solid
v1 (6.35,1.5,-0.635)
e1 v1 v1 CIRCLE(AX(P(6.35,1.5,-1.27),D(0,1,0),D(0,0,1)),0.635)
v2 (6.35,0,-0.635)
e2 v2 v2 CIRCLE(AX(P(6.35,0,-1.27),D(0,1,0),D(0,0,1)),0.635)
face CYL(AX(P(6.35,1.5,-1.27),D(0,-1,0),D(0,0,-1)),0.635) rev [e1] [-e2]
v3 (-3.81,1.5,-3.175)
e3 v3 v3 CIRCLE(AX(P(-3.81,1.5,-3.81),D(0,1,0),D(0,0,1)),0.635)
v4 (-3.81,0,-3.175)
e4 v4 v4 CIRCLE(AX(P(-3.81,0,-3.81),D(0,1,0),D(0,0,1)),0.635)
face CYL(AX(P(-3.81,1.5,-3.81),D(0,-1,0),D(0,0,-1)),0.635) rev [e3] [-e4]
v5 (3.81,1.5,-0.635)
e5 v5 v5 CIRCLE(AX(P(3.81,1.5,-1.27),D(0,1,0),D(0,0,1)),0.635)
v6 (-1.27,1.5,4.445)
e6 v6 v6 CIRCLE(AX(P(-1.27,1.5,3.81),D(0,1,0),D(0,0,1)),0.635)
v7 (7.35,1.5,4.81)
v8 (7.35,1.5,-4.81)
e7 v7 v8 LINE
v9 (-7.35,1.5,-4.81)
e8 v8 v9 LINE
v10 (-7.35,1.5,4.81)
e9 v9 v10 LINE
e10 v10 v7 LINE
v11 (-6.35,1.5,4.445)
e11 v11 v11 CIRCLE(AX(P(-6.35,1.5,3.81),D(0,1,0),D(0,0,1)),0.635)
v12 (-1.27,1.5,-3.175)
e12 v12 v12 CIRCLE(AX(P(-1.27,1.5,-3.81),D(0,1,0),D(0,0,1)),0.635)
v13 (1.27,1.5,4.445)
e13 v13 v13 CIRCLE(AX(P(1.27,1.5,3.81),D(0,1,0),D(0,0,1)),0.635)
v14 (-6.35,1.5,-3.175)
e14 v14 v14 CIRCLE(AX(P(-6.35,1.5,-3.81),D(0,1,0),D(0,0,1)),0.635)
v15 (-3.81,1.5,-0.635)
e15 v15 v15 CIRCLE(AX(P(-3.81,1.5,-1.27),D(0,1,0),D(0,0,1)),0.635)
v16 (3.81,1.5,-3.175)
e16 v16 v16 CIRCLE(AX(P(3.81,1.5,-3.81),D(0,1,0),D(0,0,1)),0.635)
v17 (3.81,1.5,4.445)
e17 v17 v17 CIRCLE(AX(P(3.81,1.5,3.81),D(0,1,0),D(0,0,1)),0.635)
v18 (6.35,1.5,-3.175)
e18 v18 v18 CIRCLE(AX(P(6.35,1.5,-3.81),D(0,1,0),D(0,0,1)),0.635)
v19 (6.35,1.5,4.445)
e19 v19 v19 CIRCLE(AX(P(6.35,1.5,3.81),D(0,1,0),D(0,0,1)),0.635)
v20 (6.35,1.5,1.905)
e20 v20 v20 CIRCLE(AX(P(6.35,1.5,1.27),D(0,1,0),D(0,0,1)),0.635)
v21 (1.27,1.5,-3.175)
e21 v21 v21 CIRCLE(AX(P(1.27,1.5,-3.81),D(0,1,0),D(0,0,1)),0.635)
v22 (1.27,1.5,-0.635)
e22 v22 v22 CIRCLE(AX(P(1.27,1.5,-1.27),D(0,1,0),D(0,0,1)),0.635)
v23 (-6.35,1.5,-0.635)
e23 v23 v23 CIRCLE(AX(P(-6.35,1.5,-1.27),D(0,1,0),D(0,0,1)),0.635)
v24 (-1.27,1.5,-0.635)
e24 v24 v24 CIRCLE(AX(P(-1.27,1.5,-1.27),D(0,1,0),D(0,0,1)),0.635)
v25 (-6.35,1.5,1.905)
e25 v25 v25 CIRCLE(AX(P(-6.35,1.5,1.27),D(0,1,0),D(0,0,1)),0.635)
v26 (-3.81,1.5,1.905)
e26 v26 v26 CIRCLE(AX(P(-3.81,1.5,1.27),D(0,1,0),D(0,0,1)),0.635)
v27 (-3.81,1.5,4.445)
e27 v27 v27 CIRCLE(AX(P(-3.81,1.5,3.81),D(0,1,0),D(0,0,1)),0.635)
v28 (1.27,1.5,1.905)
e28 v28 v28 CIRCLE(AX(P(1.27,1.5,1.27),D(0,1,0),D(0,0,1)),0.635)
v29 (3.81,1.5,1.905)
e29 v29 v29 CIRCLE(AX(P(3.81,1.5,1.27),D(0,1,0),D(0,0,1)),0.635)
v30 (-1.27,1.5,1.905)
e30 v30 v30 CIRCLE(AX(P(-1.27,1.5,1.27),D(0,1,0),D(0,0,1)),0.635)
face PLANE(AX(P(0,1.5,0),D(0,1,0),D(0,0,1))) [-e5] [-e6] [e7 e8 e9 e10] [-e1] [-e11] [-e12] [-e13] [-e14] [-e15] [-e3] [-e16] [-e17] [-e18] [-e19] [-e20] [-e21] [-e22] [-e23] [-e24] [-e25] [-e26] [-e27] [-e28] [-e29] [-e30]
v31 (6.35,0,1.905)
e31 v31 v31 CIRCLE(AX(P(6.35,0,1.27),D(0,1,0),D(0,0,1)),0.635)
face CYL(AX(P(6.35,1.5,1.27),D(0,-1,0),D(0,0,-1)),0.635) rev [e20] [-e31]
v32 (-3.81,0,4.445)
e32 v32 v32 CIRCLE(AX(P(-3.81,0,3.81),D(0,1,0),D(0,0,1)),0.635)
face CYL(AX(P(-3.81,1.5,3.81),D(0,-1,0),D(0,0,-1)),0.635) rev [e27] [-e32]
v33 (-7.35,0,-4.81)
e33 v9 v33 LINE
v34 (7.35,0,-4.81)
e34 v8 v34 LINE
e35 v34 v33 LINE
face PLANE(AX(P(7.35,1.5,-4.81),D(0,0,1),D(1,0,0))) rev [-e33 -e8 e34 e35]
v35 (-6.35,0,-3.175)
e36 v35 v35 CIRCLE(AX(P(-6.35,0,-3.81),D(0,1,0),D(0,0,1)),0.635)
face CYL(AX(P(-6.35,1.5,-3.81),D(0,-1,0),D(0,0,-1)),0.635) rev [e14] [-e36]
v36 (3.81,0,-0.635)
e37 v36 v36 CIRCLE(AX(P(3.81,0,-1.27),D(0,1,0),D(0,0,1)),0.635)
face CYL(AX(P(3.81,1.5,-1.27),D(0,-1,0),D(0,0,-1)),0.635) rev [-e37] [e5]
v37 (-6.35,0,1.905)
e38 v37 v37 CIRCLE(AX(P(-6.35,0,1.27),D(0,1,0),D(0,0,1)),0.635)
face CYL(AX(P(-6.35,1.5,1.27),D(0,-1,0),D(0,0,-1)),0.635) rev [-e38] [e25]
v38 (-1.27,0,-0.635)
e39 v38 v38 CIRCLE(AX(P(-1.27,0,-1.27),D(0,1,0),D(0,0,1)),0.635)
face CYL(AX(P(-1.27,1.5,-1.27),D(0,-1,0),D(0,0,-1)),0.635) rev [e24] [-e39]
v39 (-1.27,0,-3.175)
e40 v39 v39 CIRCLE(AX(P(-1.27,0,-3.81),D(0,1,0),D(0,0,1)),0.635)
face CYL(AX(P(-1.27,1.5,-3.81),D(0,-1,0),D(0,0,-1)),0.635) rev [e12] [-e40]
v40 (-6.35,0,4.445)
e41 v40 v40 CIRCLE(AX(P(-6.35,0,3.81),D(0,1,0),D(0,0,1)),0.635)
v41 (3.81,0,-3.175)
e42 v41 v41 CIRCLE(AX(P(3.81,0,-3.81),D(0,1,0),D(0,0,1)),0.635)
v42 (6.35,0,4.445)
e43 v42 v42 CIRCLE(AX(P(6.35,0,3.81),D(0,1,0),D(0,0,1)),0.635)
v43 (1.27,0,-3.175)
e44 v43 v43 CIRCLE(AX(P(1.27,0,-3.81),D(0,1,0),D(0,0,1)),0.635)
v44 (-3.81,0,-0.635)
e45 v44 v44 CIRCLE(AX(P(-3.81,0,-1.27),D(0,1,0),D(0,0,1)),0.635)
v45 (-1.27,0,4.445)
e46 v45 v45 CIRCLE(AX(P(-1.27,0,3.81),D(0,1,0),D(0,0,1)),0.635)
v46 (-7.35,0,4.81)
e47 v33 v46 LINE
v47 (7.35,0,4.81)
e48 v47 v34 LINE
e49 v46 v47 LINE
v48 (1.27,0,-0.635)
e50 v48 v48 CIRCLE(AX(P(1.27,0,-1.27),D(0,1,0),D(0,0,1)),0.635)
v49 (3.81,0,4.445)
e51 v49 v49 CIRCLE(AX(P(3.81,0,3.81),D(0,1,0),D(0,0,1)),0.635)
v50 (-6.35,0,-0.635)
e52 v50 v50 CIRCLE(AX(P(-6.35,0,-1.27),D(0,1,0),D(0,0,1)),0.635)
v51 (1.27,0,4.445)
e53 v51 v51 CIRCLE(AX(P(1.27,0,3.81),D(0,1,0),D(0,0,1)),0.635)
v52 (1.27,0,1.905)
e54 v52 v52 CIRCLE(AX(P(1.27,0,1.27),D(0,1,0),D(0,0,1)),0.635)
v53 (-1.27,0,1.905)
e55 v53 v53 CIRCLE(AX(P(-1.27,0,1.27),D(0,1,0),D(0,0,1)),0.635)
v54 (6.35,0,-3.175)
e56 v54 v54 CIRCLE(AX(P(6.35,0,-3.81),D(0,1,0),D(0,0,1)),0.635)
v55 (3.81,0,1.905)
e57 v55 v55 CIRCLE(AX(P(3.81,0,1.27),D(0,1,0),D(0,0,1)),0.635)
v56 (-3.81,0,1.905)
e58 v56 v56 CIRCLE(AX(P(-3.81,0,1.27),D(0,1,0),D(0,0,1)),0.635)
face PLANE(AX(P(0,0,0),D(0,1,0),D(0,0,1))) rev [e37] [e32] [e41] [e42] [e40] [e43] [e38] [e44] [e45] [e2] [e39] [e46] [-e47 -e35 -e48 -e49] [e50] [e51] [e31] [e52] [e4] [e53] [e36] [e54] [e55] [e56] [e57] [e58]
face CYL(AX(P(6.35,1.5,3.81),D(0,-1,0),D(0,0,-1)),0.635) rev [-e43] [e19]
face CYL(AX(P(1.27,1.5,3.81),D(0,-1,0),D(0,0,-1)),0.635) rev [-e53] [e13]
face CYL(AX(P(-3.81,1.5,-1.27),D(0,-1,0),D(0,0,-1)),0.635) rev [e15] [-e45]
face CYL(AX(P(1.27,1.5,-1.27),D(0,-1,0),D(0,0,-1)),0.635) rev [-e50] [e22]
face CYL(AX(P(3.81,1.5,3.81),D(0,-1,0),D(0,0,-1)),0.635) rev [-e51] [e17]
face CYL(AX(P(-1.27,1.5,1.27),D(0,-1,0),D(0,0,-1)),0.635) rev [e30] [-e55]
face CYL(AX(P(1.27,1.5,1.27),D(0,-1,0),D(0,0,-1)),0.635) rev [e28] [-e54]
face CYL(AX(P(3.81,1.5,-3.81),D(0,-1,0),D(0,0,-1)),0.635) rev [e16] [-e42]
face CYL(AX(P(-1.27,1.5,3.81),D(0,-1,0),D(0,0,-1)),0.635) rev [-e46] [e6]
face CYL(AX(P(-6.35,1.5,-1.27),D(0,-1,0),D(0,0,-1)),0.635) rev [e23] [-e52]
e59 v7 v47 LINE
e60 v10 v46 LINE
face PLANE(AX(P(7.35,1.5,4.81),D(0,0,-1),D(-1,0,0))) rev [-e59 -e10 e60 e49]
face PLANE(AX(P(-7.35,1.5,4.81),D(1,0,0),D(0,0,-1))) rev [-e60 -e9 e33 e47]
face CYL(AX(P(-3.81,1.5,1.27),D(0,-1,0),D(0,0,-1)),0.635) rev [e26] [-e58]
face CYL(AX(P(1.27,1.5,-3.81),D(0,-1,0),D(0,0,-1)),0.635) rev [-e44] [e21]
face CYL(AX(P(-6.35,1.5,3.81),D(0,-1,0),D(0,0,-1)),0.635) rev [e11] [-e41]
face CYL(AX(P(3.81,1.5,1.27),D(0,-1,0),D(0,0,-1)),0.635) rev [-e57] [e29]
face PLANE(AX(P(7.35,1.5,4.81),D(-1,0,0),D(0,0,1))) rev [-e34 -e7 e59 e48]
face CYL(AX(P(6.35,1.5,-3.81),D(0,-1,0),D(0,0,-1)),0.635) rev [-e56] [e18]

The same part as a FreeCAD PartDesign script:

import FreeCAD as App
import Part
import Sketcher
from FreeCAD import Vector
Q = App.Units.Quantity


def add_polygon(sketch, points):
    """Adds a closed chain of lines whose ends are joined by coincident constraints."""
    first, n = sketch.GeometryCount, len(points)
    for a, b in zip(points, points[1:] + points[:1]):
        sketch.addGeometry(Part.LineSegment(App.Vector(*a, 0), App.Vector(*b, 0)), False)
    for i in range(n):
        sketch.addConstraint(Sketcher.Constraint("Coincident", first + i, 2, first + (i + 1) % n, 1))

doc = App.newDocument("Part")
body = doc.addObject("PartDesign::Body", "Body")

sketch1 = body.newObject("Sketcher::SketchObject", "Sketch")
sketch1.AttachmentSupport = (doc.getObject("XZ_Plane"), [""])
sketch1.MapMode = "FlatFace"
add_polygon(sketch1, [(-7.35, -4.81), (-7.35, 4.81), (7.35, 4.81), (7.35, -4.81)])
sketch1.addGeometry(Part.Circle(Vector(-6.35, 3.81, 0), Vector(0, 0, 1), 0.635), False)
sketch1.addGeometry(Part.Circle(Vector(-3.81, 3.81, 0), Vector(0, 0, 1), 0.635), False)
sketch1.addGeometry(Part.Circle(Vector(-1.27, 3.81, 0), Vector(0, 0, 1), 0.635), False)
sketch1.addGeometry(Part.Circle(Vector(-6.35, 1.27, 0), Vector(0, 0, 1), 0.635), False)
sketch1.addGeometry(Part.Circle(Vector(-3.81, 1.27, 0), Vector(0, 0, 1), 0.635), False)
sketch1.addGeometry(Part.Circle(Vector(-1.27, 1.27, 0), Vector(0, 0, 1), 0.635), False)
sketch1.addGeometry(Part.Circle(Vector(1.27, 3.81, 0), Vector(0, 0, 1), 0.635), False)
sketch1.addGeometry(Part.Circle(Vector(3.81, 3.81, 0), Vector(0, 0, 1), 0.635), False)
sketch1.addGeometry(Part.Circle(Vector(6.35, 3.81, 0), Vector(0, 0, 1), 0.635), False)
sketch1.addGeometry(Part.Circle(Vector(1.27, 1.27, 0), Vector(0, 0, 1), 0.635), False)
sketch1.addGeometry(Part.Circle(Vector(3.81, 1.27, 0), Vector(0, 0, 1), 0.635), False)
sketch1.addGeometry(Part.Circle(Vector(6.35, 1.27, 0), Vector(0, 0, 1), 0.635), False)
sketch1.addGeometry(Part.Circle(Vector(-6.35, -1.27, 0), Vector(0, 0, 1), 0.635), False)
sketch1.addGeometry(Part.Circle(Vector(-3.81, -1.27, 0), Vector(0, 0, 1), 0.635), False)
sketch1.addGeometry(Part.Circle(Vector(-1.27, -1.27, 0), Vector(0, 0, 1), 0.635), False)
sketch1.addGeometry(Part.Circle(Vector(-6.35, -3.81, 0), Vector(0, 0, 1), 0.635), False)
sketch1.addGeometry(Part.Circle(Vector(-3.81, -3.81, 0), Vector(0, 0, 1), 0.635), False)
sketch1.addGeometry(Part.Circle(Vector(-1.27, -3.81, 0), Vector(0, 0, 1), 0.635), False)
sketch1.addGeometry(Part.Circle(Vector(1.27, -1.27, 0), Vector(0, 0, 1), 0.635), False)
sketch1.addGeometry(Part.Circle(Vector(3.81, -1.27, 0), Vector(0, 0, 1), 0.635), False)
sketch1.addGeometry(Part.Circle(Vector(6.35, -1.27, 0), Vector(0, 0, 1), 0.635), False)
sketch1.addGeometry(Part.Circle(Vector(1.27, -3.81, 0), Vector(0, 0, 1), 0.635), False)
sketch1.addGeometry(Part.Circle(Vector(3.81, -3.81, 0), Vector(0, 0, 1), 0.635), False)
sketch1.addGeometry(Part.Circle(Vector(6.35, -3.81, 0), Vector(0, 0, 1), 0.635), False)
sketch1.addConstraint(Sketcher.Constraint("Vertical", 0))
sketch1.addConstraint(Sketcher.Constraint("Horizontal", 1))
sketch1.addConstraint(Sketcher.Constraint("Vertical", 2))
sketch1.addConstraint(Sketcher.Constraint("Horizontal", 3))
sketch1.addConstraint(Sketcher.Constraint("Equal", 4, 5))
sketch1.addConstraint(Sketcher.Constraint("Equal", 5, 6))
sketch1.addConstraint(Sketcher.Constraint("Equal", 6, 7))
sketch1.addConstraint(Sketcher.Constraint("Equal", 7, 8))
sketch1.addConstraint(Sketcher.Constraint("Equal", 8, 9))
sketch1.addConstraint(Sketcher.Constraint("Equal", 9, 10))
sketch1.addConstraint(Sketcher.Constraint("Equal", 10, 11))
sketch1.addConstraint(Sketcher.Constraint("Equal", 11, 12))
sketch1.addConstraint(Sketcher.Constraint("Equal", 12, 13))
sketch1.addConstraint(Sketcher.Constraint("Equal", 13, 14))
sketch1.addConstraint(Sketcher.Constraint("Equal", 14, 15))
sketch1.addConstraint(Sketcher.Constraint("Equal", 15, 16))
sketch1.addConstraint(Sketcher.Constraint("Equal", 16, 17))
sketch1.addConstraint(Sketcher.Constraint("Equal", 17, 18))
sketch1.addConstraint(Sketcher.Constraint("Equal", 18, 19))
sketch1.addConstraint(Sketcher.Constraint("Equal", 19, 20))
sketch1.addConstraint(Sketcher.Constraint("Equal", 20, 21))
sketch1.addConstraint(Sketcher.Constraint("Equal", 21, 22))
sketch1.addConstraint(Sketcher.Constraint("Equal", 22, 23))
sketch1.addConstraint(Sketcher.Constraint("Equal", 23, 24))
sketch1.addConstraint(Sketcher.Constraint("Equal", 24, 25))
sketch1.addConstraint(Sketcher.Constraint("Equal", 25, 26))
sketch1.addConstraint(Sketcher.Constraint("Equal", 26, 27))
sketch1.addConstraint(Sketcher.Constraint("Symmetric", 15, 3, 16, 3, -1, 1))
sketch1.addConstraint(Sketcher.Constraint("Symmetric", 14, 3, 17, 3, -1, 1))
sketch1.addConstraint(Sketcher.Constraint("Symmetric", 13, 3, 18, 3, -1, 1))
sketch1.addConstraint(Sketcher.Constraint("Symmetric", 12, 3, 19, 3, -1, 1))
sketch1.addConstraint(Sketcher.Constraint("Symmetric", 11, 3, 20, 3, -1, 1))
sketch1.addConstraint(Sketcher.Constraint("Symmetric", 10, 3, 21, 3, -1, 1))
sketch1.addConstraint(Sketcher.Constraint("Symmetric", 9, 3, 22, 3, -1, 1))
sketch1.addConstraint(Sketcher.Constraint("Symmetric", 8, 3, 23, 3, -1, 1))
sketch1.addConstraint(Sketcher.Constraint("Symmetric", 7, 3, 24, 3, -1, 1))
sketch1.addConstraint(Sketcher.Constraint("Symmetric", 6, 3, 25, 3, -1, 1))
sketch1.addConstraint(Sketcher.Constraint("Symmetric", 5, 3, 26, 3, -1, 1))
sketch1.addConstraint(Sketcher.Constraint("Symmetric", 4, 3, 27, 3, -1, 1))
sketch1.addConstraint(Sketcher.Constraint("Symmetric", 0, 2, 2, 2, -1, 1))
sketch1.addConstraint(Sketcher.Constraint("Symmetric", 6, 3, 10, 3, -2))
sketch1.addConstraint(Sketcher.Constraint("Symmetric", 5, 3, 11, 3, -2))
sketch1.addConstraint(Sketcher.Constraint("Symmetric", 4, 3, 12, 3, -2))
sketch1.addConstraint(Sketcher.Constraint("Symmetric", 9, 3, 13, 3, -2))
sketch1.addConstraint(Sketcher.Constraint("Symmetric", 8, 3, 14, 3, -2))
sketch1.addConstraint(Sketcher.Constraint("Symmetric", 7, 3, 15, 3, -2))
sketch1.addConstraint(Sketcher.Constraint("Horizontal", 4, 3, 5, 3))
sketch1.addConstraint(Sketcher.Constraint("Horizontal", 5, 3, 6, 3))
sketch1.addConstraint(Sketcher.Constraint("Horizontal", 7, 3, 8, 3))
sketch1.addConstraint(Sketcher.Constraint("Horizontal", 8, 3, 9, 3))
sketch1.addConstraint(Sketcher.Constraint("Vertical", 4, 3, 7, 3))
sketch1.addConstraint(Sketcher.Constraint("Vertical", 5, 3, 8, 3))
sketch1.addConstraint(Sketcher.Constraint("Vertical", 6, 3, 9, 3))
sketch1.addConstraint(Sketcher.Constraint("Diameter", 4, Q("1.27 mm")))
sketch1.addConstraint(Sketcher.Constraint("DistanceX", 1, 1, 1, 2, Q("14.7 mm")))
sketch1.addConstraint(Sketcher.Constraint("DistanceX", 0, 2, 4, 3, Q("1 mm")))
sketch1.addConstraint(Sketcher.Constraint("DistanceY", 4, 3, 0, 2, Q("1 mm")))
sketch1.addConstraint(Sketcher.Constraint("DistanceY", 0, 1, 0, 2, Q("9.62 mm")))
sketch1.addConstraint(Sketcher.Constraint("DistanceX", 5, 3, -1, 1, Q("3.81 mm")))
sketch1.addConstraint(Sketcher.Constraint("DistanceX", 6, 3, -1, 1, Q("1.27 mm")))
sketch1.addConstraint(Sketcher.Constraint("DistanceY", -1, 1, 7, 3, Q("1.27 mm")))
pad1 = body.newObject("PartDesign::Pad", "Pad")
pad1.Profile = sketch1
pad1.Length = 1.5
pad1.Reversed = True

doc.recompute()
